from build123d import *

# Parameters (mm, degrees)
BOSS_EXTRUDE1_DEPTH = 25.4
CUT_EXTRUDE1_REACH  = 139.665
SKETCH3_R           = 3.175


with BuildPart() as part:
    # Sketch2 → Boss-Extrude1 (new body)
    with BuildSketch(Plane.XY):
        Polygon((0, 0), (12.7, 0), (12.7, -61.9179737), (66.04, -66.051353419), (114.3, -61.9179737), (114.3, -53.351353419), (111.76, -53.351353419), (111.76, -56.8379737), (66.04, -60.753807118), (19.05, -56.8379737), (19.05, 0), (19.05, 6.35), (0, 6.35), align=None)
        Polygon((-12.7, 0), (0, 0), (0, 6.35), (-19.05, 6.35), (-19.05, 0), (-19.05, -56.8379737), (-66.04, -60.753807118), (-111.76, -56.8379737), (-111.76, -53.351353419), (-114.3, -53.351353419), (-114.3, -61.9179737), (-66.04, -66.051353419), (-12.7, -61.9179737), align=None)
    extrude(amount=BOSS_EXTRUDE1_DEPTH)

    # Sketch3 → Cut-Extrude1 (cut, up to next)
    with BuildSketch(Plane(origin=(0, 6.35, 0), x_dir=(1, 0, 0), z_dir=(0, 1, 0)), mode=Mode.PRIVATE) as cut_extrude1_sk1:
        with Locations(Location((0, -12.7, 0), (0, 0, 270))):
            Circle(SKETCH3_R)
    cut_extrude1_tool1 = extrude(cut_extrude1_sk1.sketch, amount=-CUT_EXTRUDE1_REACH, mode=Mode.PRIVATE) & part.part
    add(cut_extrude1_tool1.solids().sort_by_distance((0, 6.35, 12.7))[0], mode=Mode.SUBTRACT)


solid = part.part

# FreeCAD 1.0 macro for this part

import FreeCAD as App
import Part
import Sketcher
from FreeCAD import Vector
Q = App.Units.Quantity


def add_polygon(sketch, points):
    """Adds a closed chain of lines whose ends are joined by coincident constraints."""
    first, n = sketch.GeometryCount, len(points)
    for a, b in zip(points, points[1:] + points[:1]):
        sketch.addGeometry(Part.LineSegment(App.Vector(*a, 0), App.Vector(*b, 0)), False)
    for i in range(n):
        sketch.addConstraint(Sketcher.Constraint("Coincident", first + i, 2, first + (i + 1) % n, 1))

doc = App.newDocument("Part")
body = doc.addObject("PartDesign::Body", "Body")

sketch1 = doc.addObject("Sketcher::SketchObject", "Sketch")
body.addObject(sketch1)
sketch1.AttachmentSupport = (doc.XY_Plane, [""])
sketch1.MapMode = "FlatFace"
add_polygon(sketch1, [(12.7, 0), (12.7, -61.917974), (66.04, -66.051353), (114.3, -61.917974), (114.3, -53.351353), (111.76, -53.351353), (111.76, -56.837974), (66.04, -60.753807), (19.05, -56.837974), (19.05, 6.35), (-19.05, 6.35), (-19.05, -56.837974), (-66.04, -60.753807), (-111.76, -56.837974), (-111.76, -53.351353), (-114.3, -53.351353), (-114.3, -61.917974), (-66.04, -66.051353), (-12.7, -61.917974), (-12.7, 0)])
sketch1.addConstraint([
    Sketcher.Constraint("Vertical", 0),
    Sketcher.Constraint("Vertical", 3),
    Sketcher.Constraint("Horizontal", 4),
    Sketcher.Constraint("Vertical", 5),
    Sketcher.Constraint("Vertical", 8),
    Sketcher.Constraint("Horizontal", 9),
    Sketcher.Constraint("Vertical", 10),
    Sketcher.Constraint("Vertical", 13),
    Sketcher.Constraint("Horizontal", 14),
    Sketcher.Constraint("Vertical", 15),
    Sketcher.Constraint("Vertical", 18),
    Sketcher.Constraint("Horizontal", 19),
    Sketcher.Constraint("Symmetric", 18, 2, 19, 2, -1, 1),
    Sketcher.Constraint("Symmetric", 7, 2, 10, 2, -2),
    Sketcher.Constraint("Symmetric", 6, 2, 11, 2, -2),
    Sketcher.Constraint("Symmetric", 5, 2, 12, 2, -2),
    Sketcher.Constraint("Symmetric", 3, 2, 14, 2, -2),
    Sketcher.Constraint("Symmetric", 1, 2, 16, 2, -2),
    Sketcher.Constraint("Parallel", 2, 6),
    Sketcher.Constraint("Parallel", 12, 16),
    Sketcher.Constraint("Horizontal", 0, 2, 2, 2),
    Sketcher.Constraint("Horizontal", 5, 2, 7, 2),
    Sketcher.Constraint("Horizontal", 15, 2, 17, 2),
    Sketcher.Constraint("Vertical", 1, 2, 6, 2),
    Sketcher.Constraint("DistanceX", 19, 1, 19, 2, Q("1 in")),
    Sketcher.Constraint("DistanceX", 4, 2, 4, 1, Q("0.1 in")),
    Sketcher.Constraint("DistanceX", 9, 2, 9, 1, Q("1.5 in")),
    Sketcher.Constraint("DistanceX", 0, 2, 2, 2, Q("4 in")),
    Sketcher.Constraint("DistanceX", -1, 1, 1, 2, Q("2.6 in")),
    Sketcher.Constraint("DistanceY", 1, 2, 3, 2, Q("0.5 in")),
    Sketcher.Constraint("DistanceY", 2, 2, 5, 2, Q("0.2 in")),
    Sketcher.Constraint("DistanceY", -1, 1, 8, 2, Q("0.25 in")),
    Sketcher.Constraint("DistanceY", 3, 1, 3, 2, Q("8.56662 mm")),
    Sketcher.Constraint("DistanceY", 0, 2, 0, 1, Q("61.917974 mm")),
])
pad1 = doc.addObject("PartDesign::Pad", "Pad")
body.addObject(pad1)
pad1.Profile = sketch1
pad1.Length = Q("1 in")

sketch2 = doc.addObject("Sketcher::SketchObject", "Sketch001")
body.addObject(sketch2)
sketch2.AttachmentSupport = (doc.XZ_Plane, [""])
sketch2.MapMode = "FlatFace"
sketch2.AttachmentOffset = App.Placement(Vector(0, 0, -0.25 * 25.4), App.Rotation())
sketch2.addGeometry(Part.Circle(Vector(0, 12.7, 0), Vector(0, 0, 1), 3.175), False)
sketch2.addConstraint([
    Sketcher.Constraint("PointOnObject", 0, 3, -2),
    Sketcher.Constraint("Diameter", 0, Q("0.25 in")),
    Sketcher.Constraint("DistanceY", -1, 1, 0, 3, Q("0.5 in")),
])
pocket1 = doc.addObject("PartDesign::Pocket", "Pocket")
body.addObject(pocket1)
pocket1.Profile = sketch2
pocket1.Type = "UpToFirst"
pocket1.Reversed = True

doc.recompute()
